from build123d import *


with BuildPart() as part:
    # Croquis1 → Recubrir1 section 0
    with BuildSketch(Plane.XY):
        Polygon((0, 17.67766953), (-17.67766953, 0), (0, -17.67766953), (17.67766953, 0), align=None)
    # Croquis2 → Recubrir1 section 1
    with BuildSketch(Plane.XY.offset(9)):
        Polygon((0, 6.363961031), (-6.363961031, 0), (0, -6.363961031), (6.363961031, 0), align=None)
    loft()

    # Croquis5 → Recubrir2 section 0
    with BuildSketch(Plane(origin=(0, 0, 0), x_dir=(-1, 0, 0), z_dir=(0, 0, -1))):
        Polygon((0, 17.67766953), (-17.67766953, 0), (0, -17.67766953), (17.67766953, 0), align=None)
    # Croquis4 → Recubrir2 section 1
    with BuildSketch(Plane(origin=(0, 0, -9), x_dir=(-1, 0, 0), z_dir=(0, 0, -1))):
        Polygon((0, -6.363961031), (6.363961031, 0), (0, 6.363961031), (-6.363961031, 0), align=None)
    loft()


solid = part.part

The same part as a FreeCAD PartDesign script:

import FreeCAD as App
import Part
import Sketcher
Q = App.Units.Quantity


def add_polygon(sketch, points):
    """Adds a closed chain of lines whose ends are joined by coincident constraints."""
    first, n = sketch.GeometryCount, len(points)
    for a, b in zip(points, points[1:] + points[:1]):
        sketch.addGeometry(Part.LineSegment(App.Vector(*a, 0), App.Vector(*b, 0)), False)
    for i in range(n):
        sketch.addConstraint(Sketcher.Constraint("Coincident", first + i, 2, first + (i + 1) % n, 1))

doc = App.newDocument("Part")
body = doc.addObject("PartDesign::Body", "Body")

sketch1 = body.newObject("Sketcher::SketchObject", "Sketch")
sketch1.AttachmentSupport = (doc.getObject("XY_Plane"), [""])
sketch1.MapMode = "FlatFace"
add_polygon(sketch1, [(0, 17.67767), (-17.67767, 0), (0, -17.67767), (17.67767, 0)])
sketch1.addConstraint([
    Sketcher.Constraint("Symmetric", 0, 2, 2, 2, -1, 1),
    Sketcher.Constraint("Symmetric", 1, 2, 3, 2, -1, 1),
    Sketcher.Constraint("PointOnObject", 0, 2, -1),
    Sketcher.Constraint("PointOnObject", 1, 2, -2),
    Sketcher.Constraint("Perpendicular", 0, 1),
    Sketcher.Constraint("Distance", 0, Q("25 mm")),
])

sketch2 = body.newObject("Sketcher::SketchObject", "Sketch001")
sketch2.AttachmentSupport = (doc.getObject("XY_Plane"), [""])
sketch2.MapMode = "FlatFace"
sketch2.AttachmentOffset = App.Placement(App.Vector(0, 0, 9), App.Rotation())
add_polygon(sketch2, [(0, 6.363961), (-6.363961, 0), (0, -6.363961), (6.363961, 0)])
sketch2.addConstraint([
    Sketcher.Constraint("Symmetric", 0, 2, 2, 2, -1, 1),
    Sketcher.Constraint("Symmetric", 1, 2, 3, 2, -1, 1),
    Sketcher.Constraint("PointOnObject", 0, 2, -1),
    Sketcher.Constraint("PointOnObject", 1, 2, -2),
    Sketcher.Constraint("Perpendicular", 0, 1),
    Sketcher.Constraint("Distance", 0, Q("9 mm")),
])

additiveloft = body.newObject("PartDesign::AdditiveLoft", "AdditiveLoft")
additiveloft.Profile = sketch1
additiveloft.Sections = [sketch2]

sketch3 = body.newObject("Sketcher::SketchObject", "Sketch002")
sketch3.AttachmentSupport = (doc.getObject("XY_Plane"), [""])
sketch3.MapMode = "FlatFace"
add_polygon(sketch3, [(0, 17.67767), (17.67767, 0), (0, -17.67767), (-17.67767, 0)])
sketch3.addConstraint([
    Sketcher.Constraint("Symmetric", 0, 2, 2, 2, -1, 1),
    Sketcher.Constraint("Symmetric", 1, 2, 3, 2, -1, 1),
    Sketcher.Constraint("PointOnObject", 0, 2, -1),
    Sketcher.Constraint("PointOnObject", 1, 2, -2),
    Sketcher.Constraint("Perpendicular", 0, 1),
    Sketcher.Constraint("Distance", 0, Q("25 mm")),
])

sketch4 = body.newObject("Sketcher::SketchObject", "Sketch003")
sketch4.AttachmentSupport = (doc.getObject("XY_Plane"), [""])
sketch4.MapMode = "FlatFace"
sketch4.AttachmentOffset = App.Placement(App.Vector(0, 0, -9), App.Rotation())
add_polygon(sketch4, [(0, -6.363961), (-6.363961, 0), (0, 6.363961), (6.363961, 0)])
sketch4.addConstraint([
    Sketcher.Constraint("Symmetric", 0, 2, 2, 2, -1, 1),
    Sketcher.Constraint("Symmetric", 1, 2, 3, 2, -1, 1),
    Sketcher.Constraint("PointOnObject", 0, 2, -1),
    Sketcher.Constraint("PointOnObject", 1, 2, -2),
    Sketcher.Constraint("Perpendicular", 0, 1),
    Sketcher.Constraint("Distance", 0, Q("9 mm")),
])

additiveloft2 = body.newObject("PartDesign::AdditiveLoft", "AdditiveLoft001")
additiveloft2.Profile = sketch3
additiveloft2.Sections = [sketch4]

doc.recompute()
